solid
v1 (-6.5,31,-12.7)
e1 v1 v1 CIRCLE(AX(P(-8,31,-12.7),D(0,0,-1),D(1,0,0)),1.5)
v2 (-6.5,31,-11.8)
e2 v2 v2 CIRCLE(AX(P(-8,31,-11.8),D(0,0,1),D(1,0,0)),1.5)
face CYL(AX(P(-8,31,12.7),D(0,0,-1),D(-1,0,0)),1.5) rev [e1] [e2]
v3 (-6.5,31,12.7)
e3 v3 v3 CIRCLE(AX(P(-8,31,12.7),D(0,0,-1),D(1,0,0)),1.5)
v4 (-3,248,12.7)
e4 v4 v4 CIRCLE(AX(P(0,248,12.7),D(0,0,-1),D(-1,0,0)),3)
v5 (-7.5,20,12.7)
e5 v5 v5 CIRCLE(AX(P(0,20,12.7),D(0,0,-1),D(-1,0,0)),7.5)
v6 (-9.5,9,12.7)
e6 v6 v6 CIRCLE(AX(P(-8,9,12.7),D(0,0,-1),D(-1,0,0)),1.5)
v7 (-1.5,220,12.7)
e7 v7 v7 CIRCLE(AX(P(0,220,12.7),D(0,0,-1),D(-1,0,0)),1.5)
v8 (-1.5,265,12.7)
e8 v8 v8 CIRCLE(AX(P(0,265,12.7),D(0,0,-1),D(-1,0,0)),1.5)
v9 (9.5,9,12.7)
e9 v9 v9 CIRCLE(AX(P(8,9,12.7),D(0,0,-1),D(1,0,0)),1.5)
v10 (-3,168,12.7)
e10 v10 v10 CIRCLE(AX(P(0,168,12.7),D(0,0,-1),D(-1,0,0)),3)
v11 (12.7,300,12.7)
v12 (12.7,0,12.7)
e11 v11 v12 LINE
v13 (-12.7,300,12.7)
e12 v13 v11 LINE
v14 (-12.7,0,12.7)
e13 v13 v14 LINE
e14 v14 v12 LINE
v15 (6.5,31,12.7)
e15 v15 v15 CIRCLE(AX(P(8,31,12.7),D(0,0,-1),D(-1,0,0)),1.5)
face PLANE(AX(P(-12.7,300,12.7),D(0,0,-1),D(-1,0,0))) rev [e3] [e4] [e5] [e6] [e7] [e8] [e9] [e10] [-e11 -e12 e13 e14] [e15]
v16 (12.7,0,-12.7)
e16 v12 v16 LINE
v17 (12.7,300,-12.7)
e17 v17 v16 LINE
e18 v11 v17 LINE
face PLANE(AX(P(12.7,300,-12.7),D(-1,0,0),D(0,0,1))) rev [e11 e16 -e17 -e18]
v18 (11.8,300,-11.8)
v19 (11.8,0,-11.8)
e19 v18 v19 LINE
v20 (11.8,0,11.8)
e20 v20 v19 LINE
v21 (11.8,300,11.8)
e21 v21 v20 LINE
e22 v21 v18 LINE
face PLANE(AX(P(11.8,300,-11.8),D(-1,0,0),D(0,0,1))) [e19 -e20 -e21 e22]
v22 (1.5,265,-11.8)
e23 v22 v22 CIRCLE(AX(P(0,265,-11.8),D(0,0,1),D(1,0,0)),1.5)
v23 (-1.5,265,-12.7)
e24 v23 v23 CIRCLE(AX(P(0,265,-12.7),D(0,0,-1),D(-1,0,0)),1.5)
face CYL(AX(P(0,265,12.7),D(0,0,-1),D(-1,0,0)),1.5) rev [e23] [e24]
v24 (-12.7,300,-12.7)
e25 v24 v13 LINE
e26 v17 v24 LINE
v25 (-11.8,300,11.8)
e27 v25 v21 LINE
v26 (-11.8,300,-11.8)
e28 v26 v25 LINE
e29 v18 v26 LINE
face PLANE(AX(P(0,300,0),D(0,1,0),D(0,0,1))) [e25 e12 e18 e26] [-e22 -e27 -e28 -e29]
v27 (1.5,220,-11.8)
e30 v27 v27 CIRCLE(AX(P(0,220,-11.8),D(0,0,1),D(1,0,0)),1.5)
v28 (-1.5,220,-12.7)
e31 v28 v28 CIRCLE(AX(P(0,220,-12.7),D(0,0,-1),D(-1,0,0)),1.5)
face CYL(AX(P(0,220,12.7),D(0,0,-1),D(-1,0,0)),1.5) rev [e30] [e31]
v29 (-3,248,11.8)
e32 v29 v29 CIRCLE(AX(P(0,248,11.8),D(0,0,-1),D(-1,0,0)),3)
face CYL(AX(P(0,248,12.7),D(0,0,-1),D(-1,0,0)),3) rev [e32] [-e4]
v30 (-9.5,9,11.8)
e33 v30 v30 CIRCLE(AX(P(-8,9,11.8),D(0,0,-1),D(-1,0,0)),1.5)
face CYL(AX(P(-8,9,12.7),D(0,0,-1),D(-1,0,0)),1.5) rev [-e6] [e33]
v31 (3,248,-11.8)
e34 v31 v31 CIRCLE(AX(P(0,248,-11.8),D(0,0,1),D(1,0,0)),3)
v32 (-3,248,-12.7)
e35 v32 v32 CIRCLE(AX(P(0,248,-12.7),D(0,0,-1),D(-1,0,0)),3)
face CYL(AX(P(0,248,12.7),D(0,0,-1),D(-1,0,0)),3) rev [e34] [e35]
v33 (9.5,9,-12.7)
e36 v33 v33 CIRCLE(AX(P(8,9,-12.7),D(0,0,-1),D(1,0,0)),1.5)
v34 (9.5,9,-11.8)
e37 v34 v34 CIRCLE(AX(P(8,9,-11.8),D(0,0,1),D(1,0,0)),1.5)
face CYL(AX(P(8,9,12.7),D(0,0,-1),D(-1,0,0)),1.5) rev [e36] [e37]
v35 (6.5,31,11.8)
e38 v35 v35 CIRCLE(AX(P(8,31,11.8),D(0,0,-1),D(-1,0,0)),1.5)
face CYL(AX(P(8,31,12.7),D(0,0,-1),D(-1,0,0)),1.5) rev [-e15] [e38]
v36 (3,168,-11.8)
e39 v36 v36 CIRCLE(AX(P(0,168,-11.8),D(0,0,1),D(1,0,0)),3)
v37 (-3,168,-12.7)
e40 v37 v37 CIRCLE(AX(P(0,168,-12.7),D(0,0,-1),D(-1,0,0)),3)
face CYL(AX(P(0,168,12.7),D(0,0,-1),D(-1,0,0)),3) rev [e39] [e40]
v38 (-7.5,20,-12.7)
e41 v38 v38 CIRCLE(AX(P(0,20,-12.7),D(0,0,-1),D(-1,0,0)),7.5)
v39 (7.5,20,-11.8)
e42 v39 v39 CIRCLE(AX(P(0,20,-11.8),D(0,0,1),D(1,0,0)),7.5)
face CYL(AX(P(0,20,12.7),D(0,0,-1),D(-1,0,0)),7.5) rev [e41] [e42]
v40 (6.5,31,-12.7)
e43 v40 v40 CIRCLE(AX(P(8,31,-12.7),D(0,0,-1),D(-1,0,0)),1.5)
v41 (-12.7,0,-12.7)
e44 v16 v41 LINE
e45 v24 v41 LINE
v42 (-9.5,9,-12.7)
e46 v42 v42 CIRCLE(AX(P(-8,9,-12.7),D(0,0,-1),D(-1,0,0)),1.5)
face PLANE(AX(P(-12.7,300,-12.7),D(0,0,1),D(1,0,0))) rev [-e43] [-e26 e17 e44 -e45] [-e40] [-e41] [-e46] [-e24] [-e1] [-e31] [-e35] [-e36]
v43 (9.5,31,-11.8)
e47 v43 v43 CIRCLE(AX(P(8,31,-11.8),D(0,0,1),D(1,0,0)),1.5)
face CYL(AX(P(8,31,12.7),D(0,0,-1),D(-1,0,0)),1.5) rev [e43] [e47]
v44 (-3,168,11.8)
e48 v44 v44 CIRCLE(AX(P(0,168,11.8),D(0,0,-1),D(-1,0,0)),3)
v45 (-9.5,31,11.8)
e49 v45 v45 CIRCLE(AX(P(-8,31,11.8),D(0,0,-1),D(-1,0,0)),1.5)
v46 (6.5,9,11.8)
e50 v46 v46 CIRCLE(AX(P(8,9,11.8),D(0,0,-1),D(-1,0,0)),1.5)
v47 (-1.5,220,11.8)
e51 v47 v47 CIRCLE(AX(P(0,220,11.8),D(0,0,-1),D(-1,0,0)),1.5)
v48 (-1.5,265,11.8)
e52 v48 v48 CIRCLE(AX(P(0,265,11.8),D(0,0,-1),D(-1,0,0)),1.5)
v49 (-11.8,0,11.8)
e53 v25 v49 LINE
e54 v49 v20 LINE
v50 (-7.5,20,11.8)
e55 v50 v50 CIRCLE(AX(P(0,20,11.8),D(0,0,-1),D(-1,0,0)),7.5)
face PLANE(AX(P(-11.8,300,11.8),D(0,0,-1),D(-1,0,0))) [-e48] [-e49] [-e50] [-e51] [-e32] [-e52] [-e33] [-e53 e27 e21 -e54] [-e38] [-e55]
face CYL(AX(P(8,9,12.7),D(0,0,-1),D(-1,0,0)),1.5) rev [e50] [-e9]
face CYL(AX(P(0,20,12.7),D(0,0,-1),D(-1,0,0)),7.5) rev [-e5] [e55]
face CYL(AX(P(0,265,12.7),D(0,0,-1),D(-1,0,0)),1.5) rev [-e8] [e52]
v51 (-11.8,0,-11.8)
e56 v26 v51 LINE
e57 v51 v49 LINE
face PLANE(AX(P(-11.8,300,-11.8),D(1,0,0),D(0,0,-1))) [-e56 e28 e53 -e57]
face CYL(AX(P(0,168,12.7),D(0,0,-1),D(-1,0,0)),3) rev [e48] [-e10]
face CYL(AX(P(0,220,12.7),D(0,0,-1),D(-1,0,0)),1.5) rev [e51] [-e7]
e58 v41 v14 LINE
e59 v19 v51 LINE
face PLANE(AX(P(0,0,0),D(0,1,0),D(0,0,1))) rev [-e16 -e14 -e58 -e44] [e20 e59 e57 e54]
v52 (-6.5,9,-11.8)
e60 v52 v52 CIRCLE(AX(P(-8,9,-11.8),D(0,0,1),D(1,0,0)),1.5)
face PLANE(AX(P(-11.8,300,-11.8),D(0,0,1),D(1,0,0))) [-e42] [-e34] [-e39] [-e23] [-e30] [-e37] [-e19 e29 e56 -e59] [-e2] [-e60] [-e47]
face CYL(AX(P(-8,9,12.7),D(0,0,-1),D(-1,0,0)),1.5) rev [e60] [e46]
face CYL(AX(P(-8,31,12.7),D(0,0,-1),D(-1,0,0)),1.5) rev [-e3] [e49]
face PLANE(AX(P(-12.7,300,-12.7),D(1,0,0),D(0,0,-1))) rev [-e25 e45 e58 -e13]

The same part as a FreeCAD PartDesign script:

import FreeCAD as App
import Part
import Sketcher
Q = App.Units.Quantity


def add_polygon(sketch, points):
    """Adds a closed chain of lines whose ends are joined by coincident constraints."""
    first, n = sketch.GeometryCount, len(points)
    for a, b in zip(points, points[1:] + points[:1]):
        sketch.addGeometry(Part.LineSegment(App.Vector(*a, 0), App.Vector(*b, 0)), False)
    for i in range(n):
        sketch.addConstraint(Sketcher.Constraint("Coincident", first + i, 2, first + (i + 1) % n, 1))

doc = App.newDocument("Part")
body = doc.addObject("PartDesign::Body", "Body")

sketch1 = body.newObject("Sketcher::SketchObject", "Sketch")
sketch1.AttachmentSupport = (doc.getObject("XZ_Plane"), [""])
sketch1.MapMode = "FlatFace"
add_polygon(sketch1, [(-12.7, -12.7), (-12.7, 12.7), (12.7, 12.7), (12.7, -12.7)])
add_polygon(sketch1, [(11.8, 11.8), (-11.8, 11.8), (-11.8, -11.8), (11.8, -11.8)])
sketch1.addConstraint([
    Sketcher.Constraint("Vertical", 0),
    Sketcher.Constraint("Horizontal", 1),
    Sketcher.Constraint("Vertical", 2),
    Sketcher.Constraint("Horizontal", 3),
    Sketcher.Constraint("Horizontal", 4),
    Sketcher.Constraint("Vertical", 5),
    Sketcher.Constraint("Horizontal", 6),
    Sketcher.Constraint("Vertical", 7),
    Sketcher.Constraint("Symmetric", 0, 2, 2, 2, -1, 1),
    Sketcher.Constraint("Symmetric", 4, 2, 6, 2, -1, 1),
    Sketcher.Constraint("Equal", 3, 0),
    Sketcher.Constraint("Equal", 6, 5),
    Sketcher.Constraint("DistanceX", 1, 1, 1, 2, Q("25.4 mm")),
    Sketcher.Constraint("DistanceX", 4, 2, 4, 1, Q("23.6 mm")),
])
pad1 = body.newObject("PartDesign::Pad", "Pad")
pad1.Profile = sketch1
pad1.Length = 300
pad1.Reversed = True

sketch2 = body.newObject("Sketcher::SketchObject", "Sketch001")
sketch2.AttachmentSupport = (doc.getObject("XY_Plane"), [""])
sketch2.MapMode = "FlatFace"
sketch2.AttachmentOffset = App.Placement(App.Vector(0, 0, -12.7), App.Rotation())
sketch2.addGeometry(Part.Circle(App.Vector(0, 20, 0), App.Vector(0, 0, 1), 7.5), False)
sketch2.addConstraint([
    Sketcher.Constraint("PointOnObject", 0, 3, -2),
    Sketcher.Constraint("Diameter", 0, Q("15 mm")),
    Sketcher.Constraint("DistanceY", -1, 1, 0, 3, Q("20 mm")),
])
pocket1 = body.newObject("PartDesign::Pocket", "Pocket")
pocket1.Profile = sketch2
pocket1.Length = 25.4
pocket1.Reversed = True

sketch3 = body.newObject("Sketcher::SketchObject", "Sketch002")
sketch3.AttachmentSupport = (doc.getObject("XY_Plane"), [""])
sketch3.MapMode = "FlatFace"
sketch3.AttachmentOffset = App.Placement(App.Vector(0, 0, -12.7), App.Rotation())
sketch3.addGeometry([
    Part.Circle(App.Vector(0, 168, 0), App.Vector(0, 0, 1), 3),
    Part.Circle(App.Vector(0, 248, 0), App.Vector(0, 0, 1), 3),
], False)
sketch3.addConstraint([
    Sketcher.Constraint("Equal", 0, 1),
    Sketcher.Constraint("PointOnObject", 0, 3, -2),
    Sketcher.Constraint("PointOnObject", 1, 3, -2),
    Sketcher.Constraint("Diameter", 0, Q("6 mm")),
    Sketcher.Constraint("DistanceY", -1, 1, 0, 3, Q("168 mm")),
    Sketcher.Constraint("DistanceY", -1, 1, 1, 3, Q("248 mm")),
])
pocket2 = body.newObject("PartDesign::Pocket", "Pocket001")
pocket2.Profile = sketch3
pocket2.Length = 25.4
pocket2.Reversed = True

sketch4 = body.newObject("Sketcher::SketchObject", "Sketch003")
sketch4.AttachmentSupport = (doc.getObject("XY_Plane"), [""])
sketch4.MapMode = "FlatFace"
sketch4.AttachmentOffset = App.Placement(App.Vector(0, 0, -12.7), App.Rotation())
sketch4.addGeometry([
    Part.Circle(App.Vector(-8, 9, 0), App.Vector(0, 0, 1), 1.5),
    Part.Circle(App.Vector(-8, 31, 0), App.Vector(0, 0, 1), 1.5),
    Part.Circle(App.Vector(8, 9, 0), App.Vector(0, 0, 1), 1.5),
    Part.Circle(App.Vector(8, 31, 0), App.Vector(0, 0, 1), 1.5),
], False)
sketch4.addConstraint([
    Sketcher.Constraint("Equal", 0, 1),
    Sketcher.Constraint("Equal", 1, 2),
    Sketcher.Constraint("Equal", 2, 3),
    Sketcher.Constraint("Symmetric", 0, 3, 2, 3, -2),
    Sketcher.Constraint("Symmetric", 1, 3, 3, 3, -2),
    Sketcher.Constraint("Vertical", 0, 3, 1, 3),
    Sketcher.Constraint("Diameter", 0, Q("3 mm")),
    Sketcher.Constraint("DistanceX", 0, 3, -1, 1, Q("8 mm")),
    Sketcher.Constraint("DistanceY", -1, 1, 0, 3, Q("9 mm")),
    Sketcher.Constraint("DistanceY", -1, 1, 1, 3, Q("31 mm")),
])
pocket3 = body.newObject("PartDesign::Pocket", "Pocket002")
pocket3.Profile = sketch4
pocket3.Length = 25.4
pocket3.Reversed = True

sketch5 = body.newObject("Sketcher::SketchObject", "Sketch004")
sketch5.AttachmentSupport = (doc.getObject("XY_Plane"), [""])
sketch5.MapMode = "FlatFace"
sketch5.AttachmentOffset = App.Placement(App.Vector(0, 0, -12.7), App.Rotation())
sketch5.addGeometry([
    Part.Circle(App.Vector(0, 220, 0), App.Vector(0, 0, 1), 1.5),
    Part.Circle(App.Vector(0, 265, 0), App.Vector(0, 0, 1), 1.5),
], False)
sketch5.addConstraint([
    Sketcher.Constraint("Equal", 0, 1),
    Sketcher.Constraint("PointOnObject", 0, 3, -2),
    Sketcher.Constraint("PointOnObject", 1, 3, -2),
    Sketcher.Constraint("Diameter", 0, Q("3 mm")),
    Sketcher.Constraint("DistanceY", -1, 1, 0, 3, Q("220 mm")),
    Sketcher.Constraint("DistanceY", -1, 1, 1, 3, Q("265 mm")),
])
pocket4 = body.newObject("PartDesign::Pocket", "Pocket003")
pocket4.Profile = sketch5
pocket4.Length = 25.4
pocket4.Reversed = True

doc.recompute()
